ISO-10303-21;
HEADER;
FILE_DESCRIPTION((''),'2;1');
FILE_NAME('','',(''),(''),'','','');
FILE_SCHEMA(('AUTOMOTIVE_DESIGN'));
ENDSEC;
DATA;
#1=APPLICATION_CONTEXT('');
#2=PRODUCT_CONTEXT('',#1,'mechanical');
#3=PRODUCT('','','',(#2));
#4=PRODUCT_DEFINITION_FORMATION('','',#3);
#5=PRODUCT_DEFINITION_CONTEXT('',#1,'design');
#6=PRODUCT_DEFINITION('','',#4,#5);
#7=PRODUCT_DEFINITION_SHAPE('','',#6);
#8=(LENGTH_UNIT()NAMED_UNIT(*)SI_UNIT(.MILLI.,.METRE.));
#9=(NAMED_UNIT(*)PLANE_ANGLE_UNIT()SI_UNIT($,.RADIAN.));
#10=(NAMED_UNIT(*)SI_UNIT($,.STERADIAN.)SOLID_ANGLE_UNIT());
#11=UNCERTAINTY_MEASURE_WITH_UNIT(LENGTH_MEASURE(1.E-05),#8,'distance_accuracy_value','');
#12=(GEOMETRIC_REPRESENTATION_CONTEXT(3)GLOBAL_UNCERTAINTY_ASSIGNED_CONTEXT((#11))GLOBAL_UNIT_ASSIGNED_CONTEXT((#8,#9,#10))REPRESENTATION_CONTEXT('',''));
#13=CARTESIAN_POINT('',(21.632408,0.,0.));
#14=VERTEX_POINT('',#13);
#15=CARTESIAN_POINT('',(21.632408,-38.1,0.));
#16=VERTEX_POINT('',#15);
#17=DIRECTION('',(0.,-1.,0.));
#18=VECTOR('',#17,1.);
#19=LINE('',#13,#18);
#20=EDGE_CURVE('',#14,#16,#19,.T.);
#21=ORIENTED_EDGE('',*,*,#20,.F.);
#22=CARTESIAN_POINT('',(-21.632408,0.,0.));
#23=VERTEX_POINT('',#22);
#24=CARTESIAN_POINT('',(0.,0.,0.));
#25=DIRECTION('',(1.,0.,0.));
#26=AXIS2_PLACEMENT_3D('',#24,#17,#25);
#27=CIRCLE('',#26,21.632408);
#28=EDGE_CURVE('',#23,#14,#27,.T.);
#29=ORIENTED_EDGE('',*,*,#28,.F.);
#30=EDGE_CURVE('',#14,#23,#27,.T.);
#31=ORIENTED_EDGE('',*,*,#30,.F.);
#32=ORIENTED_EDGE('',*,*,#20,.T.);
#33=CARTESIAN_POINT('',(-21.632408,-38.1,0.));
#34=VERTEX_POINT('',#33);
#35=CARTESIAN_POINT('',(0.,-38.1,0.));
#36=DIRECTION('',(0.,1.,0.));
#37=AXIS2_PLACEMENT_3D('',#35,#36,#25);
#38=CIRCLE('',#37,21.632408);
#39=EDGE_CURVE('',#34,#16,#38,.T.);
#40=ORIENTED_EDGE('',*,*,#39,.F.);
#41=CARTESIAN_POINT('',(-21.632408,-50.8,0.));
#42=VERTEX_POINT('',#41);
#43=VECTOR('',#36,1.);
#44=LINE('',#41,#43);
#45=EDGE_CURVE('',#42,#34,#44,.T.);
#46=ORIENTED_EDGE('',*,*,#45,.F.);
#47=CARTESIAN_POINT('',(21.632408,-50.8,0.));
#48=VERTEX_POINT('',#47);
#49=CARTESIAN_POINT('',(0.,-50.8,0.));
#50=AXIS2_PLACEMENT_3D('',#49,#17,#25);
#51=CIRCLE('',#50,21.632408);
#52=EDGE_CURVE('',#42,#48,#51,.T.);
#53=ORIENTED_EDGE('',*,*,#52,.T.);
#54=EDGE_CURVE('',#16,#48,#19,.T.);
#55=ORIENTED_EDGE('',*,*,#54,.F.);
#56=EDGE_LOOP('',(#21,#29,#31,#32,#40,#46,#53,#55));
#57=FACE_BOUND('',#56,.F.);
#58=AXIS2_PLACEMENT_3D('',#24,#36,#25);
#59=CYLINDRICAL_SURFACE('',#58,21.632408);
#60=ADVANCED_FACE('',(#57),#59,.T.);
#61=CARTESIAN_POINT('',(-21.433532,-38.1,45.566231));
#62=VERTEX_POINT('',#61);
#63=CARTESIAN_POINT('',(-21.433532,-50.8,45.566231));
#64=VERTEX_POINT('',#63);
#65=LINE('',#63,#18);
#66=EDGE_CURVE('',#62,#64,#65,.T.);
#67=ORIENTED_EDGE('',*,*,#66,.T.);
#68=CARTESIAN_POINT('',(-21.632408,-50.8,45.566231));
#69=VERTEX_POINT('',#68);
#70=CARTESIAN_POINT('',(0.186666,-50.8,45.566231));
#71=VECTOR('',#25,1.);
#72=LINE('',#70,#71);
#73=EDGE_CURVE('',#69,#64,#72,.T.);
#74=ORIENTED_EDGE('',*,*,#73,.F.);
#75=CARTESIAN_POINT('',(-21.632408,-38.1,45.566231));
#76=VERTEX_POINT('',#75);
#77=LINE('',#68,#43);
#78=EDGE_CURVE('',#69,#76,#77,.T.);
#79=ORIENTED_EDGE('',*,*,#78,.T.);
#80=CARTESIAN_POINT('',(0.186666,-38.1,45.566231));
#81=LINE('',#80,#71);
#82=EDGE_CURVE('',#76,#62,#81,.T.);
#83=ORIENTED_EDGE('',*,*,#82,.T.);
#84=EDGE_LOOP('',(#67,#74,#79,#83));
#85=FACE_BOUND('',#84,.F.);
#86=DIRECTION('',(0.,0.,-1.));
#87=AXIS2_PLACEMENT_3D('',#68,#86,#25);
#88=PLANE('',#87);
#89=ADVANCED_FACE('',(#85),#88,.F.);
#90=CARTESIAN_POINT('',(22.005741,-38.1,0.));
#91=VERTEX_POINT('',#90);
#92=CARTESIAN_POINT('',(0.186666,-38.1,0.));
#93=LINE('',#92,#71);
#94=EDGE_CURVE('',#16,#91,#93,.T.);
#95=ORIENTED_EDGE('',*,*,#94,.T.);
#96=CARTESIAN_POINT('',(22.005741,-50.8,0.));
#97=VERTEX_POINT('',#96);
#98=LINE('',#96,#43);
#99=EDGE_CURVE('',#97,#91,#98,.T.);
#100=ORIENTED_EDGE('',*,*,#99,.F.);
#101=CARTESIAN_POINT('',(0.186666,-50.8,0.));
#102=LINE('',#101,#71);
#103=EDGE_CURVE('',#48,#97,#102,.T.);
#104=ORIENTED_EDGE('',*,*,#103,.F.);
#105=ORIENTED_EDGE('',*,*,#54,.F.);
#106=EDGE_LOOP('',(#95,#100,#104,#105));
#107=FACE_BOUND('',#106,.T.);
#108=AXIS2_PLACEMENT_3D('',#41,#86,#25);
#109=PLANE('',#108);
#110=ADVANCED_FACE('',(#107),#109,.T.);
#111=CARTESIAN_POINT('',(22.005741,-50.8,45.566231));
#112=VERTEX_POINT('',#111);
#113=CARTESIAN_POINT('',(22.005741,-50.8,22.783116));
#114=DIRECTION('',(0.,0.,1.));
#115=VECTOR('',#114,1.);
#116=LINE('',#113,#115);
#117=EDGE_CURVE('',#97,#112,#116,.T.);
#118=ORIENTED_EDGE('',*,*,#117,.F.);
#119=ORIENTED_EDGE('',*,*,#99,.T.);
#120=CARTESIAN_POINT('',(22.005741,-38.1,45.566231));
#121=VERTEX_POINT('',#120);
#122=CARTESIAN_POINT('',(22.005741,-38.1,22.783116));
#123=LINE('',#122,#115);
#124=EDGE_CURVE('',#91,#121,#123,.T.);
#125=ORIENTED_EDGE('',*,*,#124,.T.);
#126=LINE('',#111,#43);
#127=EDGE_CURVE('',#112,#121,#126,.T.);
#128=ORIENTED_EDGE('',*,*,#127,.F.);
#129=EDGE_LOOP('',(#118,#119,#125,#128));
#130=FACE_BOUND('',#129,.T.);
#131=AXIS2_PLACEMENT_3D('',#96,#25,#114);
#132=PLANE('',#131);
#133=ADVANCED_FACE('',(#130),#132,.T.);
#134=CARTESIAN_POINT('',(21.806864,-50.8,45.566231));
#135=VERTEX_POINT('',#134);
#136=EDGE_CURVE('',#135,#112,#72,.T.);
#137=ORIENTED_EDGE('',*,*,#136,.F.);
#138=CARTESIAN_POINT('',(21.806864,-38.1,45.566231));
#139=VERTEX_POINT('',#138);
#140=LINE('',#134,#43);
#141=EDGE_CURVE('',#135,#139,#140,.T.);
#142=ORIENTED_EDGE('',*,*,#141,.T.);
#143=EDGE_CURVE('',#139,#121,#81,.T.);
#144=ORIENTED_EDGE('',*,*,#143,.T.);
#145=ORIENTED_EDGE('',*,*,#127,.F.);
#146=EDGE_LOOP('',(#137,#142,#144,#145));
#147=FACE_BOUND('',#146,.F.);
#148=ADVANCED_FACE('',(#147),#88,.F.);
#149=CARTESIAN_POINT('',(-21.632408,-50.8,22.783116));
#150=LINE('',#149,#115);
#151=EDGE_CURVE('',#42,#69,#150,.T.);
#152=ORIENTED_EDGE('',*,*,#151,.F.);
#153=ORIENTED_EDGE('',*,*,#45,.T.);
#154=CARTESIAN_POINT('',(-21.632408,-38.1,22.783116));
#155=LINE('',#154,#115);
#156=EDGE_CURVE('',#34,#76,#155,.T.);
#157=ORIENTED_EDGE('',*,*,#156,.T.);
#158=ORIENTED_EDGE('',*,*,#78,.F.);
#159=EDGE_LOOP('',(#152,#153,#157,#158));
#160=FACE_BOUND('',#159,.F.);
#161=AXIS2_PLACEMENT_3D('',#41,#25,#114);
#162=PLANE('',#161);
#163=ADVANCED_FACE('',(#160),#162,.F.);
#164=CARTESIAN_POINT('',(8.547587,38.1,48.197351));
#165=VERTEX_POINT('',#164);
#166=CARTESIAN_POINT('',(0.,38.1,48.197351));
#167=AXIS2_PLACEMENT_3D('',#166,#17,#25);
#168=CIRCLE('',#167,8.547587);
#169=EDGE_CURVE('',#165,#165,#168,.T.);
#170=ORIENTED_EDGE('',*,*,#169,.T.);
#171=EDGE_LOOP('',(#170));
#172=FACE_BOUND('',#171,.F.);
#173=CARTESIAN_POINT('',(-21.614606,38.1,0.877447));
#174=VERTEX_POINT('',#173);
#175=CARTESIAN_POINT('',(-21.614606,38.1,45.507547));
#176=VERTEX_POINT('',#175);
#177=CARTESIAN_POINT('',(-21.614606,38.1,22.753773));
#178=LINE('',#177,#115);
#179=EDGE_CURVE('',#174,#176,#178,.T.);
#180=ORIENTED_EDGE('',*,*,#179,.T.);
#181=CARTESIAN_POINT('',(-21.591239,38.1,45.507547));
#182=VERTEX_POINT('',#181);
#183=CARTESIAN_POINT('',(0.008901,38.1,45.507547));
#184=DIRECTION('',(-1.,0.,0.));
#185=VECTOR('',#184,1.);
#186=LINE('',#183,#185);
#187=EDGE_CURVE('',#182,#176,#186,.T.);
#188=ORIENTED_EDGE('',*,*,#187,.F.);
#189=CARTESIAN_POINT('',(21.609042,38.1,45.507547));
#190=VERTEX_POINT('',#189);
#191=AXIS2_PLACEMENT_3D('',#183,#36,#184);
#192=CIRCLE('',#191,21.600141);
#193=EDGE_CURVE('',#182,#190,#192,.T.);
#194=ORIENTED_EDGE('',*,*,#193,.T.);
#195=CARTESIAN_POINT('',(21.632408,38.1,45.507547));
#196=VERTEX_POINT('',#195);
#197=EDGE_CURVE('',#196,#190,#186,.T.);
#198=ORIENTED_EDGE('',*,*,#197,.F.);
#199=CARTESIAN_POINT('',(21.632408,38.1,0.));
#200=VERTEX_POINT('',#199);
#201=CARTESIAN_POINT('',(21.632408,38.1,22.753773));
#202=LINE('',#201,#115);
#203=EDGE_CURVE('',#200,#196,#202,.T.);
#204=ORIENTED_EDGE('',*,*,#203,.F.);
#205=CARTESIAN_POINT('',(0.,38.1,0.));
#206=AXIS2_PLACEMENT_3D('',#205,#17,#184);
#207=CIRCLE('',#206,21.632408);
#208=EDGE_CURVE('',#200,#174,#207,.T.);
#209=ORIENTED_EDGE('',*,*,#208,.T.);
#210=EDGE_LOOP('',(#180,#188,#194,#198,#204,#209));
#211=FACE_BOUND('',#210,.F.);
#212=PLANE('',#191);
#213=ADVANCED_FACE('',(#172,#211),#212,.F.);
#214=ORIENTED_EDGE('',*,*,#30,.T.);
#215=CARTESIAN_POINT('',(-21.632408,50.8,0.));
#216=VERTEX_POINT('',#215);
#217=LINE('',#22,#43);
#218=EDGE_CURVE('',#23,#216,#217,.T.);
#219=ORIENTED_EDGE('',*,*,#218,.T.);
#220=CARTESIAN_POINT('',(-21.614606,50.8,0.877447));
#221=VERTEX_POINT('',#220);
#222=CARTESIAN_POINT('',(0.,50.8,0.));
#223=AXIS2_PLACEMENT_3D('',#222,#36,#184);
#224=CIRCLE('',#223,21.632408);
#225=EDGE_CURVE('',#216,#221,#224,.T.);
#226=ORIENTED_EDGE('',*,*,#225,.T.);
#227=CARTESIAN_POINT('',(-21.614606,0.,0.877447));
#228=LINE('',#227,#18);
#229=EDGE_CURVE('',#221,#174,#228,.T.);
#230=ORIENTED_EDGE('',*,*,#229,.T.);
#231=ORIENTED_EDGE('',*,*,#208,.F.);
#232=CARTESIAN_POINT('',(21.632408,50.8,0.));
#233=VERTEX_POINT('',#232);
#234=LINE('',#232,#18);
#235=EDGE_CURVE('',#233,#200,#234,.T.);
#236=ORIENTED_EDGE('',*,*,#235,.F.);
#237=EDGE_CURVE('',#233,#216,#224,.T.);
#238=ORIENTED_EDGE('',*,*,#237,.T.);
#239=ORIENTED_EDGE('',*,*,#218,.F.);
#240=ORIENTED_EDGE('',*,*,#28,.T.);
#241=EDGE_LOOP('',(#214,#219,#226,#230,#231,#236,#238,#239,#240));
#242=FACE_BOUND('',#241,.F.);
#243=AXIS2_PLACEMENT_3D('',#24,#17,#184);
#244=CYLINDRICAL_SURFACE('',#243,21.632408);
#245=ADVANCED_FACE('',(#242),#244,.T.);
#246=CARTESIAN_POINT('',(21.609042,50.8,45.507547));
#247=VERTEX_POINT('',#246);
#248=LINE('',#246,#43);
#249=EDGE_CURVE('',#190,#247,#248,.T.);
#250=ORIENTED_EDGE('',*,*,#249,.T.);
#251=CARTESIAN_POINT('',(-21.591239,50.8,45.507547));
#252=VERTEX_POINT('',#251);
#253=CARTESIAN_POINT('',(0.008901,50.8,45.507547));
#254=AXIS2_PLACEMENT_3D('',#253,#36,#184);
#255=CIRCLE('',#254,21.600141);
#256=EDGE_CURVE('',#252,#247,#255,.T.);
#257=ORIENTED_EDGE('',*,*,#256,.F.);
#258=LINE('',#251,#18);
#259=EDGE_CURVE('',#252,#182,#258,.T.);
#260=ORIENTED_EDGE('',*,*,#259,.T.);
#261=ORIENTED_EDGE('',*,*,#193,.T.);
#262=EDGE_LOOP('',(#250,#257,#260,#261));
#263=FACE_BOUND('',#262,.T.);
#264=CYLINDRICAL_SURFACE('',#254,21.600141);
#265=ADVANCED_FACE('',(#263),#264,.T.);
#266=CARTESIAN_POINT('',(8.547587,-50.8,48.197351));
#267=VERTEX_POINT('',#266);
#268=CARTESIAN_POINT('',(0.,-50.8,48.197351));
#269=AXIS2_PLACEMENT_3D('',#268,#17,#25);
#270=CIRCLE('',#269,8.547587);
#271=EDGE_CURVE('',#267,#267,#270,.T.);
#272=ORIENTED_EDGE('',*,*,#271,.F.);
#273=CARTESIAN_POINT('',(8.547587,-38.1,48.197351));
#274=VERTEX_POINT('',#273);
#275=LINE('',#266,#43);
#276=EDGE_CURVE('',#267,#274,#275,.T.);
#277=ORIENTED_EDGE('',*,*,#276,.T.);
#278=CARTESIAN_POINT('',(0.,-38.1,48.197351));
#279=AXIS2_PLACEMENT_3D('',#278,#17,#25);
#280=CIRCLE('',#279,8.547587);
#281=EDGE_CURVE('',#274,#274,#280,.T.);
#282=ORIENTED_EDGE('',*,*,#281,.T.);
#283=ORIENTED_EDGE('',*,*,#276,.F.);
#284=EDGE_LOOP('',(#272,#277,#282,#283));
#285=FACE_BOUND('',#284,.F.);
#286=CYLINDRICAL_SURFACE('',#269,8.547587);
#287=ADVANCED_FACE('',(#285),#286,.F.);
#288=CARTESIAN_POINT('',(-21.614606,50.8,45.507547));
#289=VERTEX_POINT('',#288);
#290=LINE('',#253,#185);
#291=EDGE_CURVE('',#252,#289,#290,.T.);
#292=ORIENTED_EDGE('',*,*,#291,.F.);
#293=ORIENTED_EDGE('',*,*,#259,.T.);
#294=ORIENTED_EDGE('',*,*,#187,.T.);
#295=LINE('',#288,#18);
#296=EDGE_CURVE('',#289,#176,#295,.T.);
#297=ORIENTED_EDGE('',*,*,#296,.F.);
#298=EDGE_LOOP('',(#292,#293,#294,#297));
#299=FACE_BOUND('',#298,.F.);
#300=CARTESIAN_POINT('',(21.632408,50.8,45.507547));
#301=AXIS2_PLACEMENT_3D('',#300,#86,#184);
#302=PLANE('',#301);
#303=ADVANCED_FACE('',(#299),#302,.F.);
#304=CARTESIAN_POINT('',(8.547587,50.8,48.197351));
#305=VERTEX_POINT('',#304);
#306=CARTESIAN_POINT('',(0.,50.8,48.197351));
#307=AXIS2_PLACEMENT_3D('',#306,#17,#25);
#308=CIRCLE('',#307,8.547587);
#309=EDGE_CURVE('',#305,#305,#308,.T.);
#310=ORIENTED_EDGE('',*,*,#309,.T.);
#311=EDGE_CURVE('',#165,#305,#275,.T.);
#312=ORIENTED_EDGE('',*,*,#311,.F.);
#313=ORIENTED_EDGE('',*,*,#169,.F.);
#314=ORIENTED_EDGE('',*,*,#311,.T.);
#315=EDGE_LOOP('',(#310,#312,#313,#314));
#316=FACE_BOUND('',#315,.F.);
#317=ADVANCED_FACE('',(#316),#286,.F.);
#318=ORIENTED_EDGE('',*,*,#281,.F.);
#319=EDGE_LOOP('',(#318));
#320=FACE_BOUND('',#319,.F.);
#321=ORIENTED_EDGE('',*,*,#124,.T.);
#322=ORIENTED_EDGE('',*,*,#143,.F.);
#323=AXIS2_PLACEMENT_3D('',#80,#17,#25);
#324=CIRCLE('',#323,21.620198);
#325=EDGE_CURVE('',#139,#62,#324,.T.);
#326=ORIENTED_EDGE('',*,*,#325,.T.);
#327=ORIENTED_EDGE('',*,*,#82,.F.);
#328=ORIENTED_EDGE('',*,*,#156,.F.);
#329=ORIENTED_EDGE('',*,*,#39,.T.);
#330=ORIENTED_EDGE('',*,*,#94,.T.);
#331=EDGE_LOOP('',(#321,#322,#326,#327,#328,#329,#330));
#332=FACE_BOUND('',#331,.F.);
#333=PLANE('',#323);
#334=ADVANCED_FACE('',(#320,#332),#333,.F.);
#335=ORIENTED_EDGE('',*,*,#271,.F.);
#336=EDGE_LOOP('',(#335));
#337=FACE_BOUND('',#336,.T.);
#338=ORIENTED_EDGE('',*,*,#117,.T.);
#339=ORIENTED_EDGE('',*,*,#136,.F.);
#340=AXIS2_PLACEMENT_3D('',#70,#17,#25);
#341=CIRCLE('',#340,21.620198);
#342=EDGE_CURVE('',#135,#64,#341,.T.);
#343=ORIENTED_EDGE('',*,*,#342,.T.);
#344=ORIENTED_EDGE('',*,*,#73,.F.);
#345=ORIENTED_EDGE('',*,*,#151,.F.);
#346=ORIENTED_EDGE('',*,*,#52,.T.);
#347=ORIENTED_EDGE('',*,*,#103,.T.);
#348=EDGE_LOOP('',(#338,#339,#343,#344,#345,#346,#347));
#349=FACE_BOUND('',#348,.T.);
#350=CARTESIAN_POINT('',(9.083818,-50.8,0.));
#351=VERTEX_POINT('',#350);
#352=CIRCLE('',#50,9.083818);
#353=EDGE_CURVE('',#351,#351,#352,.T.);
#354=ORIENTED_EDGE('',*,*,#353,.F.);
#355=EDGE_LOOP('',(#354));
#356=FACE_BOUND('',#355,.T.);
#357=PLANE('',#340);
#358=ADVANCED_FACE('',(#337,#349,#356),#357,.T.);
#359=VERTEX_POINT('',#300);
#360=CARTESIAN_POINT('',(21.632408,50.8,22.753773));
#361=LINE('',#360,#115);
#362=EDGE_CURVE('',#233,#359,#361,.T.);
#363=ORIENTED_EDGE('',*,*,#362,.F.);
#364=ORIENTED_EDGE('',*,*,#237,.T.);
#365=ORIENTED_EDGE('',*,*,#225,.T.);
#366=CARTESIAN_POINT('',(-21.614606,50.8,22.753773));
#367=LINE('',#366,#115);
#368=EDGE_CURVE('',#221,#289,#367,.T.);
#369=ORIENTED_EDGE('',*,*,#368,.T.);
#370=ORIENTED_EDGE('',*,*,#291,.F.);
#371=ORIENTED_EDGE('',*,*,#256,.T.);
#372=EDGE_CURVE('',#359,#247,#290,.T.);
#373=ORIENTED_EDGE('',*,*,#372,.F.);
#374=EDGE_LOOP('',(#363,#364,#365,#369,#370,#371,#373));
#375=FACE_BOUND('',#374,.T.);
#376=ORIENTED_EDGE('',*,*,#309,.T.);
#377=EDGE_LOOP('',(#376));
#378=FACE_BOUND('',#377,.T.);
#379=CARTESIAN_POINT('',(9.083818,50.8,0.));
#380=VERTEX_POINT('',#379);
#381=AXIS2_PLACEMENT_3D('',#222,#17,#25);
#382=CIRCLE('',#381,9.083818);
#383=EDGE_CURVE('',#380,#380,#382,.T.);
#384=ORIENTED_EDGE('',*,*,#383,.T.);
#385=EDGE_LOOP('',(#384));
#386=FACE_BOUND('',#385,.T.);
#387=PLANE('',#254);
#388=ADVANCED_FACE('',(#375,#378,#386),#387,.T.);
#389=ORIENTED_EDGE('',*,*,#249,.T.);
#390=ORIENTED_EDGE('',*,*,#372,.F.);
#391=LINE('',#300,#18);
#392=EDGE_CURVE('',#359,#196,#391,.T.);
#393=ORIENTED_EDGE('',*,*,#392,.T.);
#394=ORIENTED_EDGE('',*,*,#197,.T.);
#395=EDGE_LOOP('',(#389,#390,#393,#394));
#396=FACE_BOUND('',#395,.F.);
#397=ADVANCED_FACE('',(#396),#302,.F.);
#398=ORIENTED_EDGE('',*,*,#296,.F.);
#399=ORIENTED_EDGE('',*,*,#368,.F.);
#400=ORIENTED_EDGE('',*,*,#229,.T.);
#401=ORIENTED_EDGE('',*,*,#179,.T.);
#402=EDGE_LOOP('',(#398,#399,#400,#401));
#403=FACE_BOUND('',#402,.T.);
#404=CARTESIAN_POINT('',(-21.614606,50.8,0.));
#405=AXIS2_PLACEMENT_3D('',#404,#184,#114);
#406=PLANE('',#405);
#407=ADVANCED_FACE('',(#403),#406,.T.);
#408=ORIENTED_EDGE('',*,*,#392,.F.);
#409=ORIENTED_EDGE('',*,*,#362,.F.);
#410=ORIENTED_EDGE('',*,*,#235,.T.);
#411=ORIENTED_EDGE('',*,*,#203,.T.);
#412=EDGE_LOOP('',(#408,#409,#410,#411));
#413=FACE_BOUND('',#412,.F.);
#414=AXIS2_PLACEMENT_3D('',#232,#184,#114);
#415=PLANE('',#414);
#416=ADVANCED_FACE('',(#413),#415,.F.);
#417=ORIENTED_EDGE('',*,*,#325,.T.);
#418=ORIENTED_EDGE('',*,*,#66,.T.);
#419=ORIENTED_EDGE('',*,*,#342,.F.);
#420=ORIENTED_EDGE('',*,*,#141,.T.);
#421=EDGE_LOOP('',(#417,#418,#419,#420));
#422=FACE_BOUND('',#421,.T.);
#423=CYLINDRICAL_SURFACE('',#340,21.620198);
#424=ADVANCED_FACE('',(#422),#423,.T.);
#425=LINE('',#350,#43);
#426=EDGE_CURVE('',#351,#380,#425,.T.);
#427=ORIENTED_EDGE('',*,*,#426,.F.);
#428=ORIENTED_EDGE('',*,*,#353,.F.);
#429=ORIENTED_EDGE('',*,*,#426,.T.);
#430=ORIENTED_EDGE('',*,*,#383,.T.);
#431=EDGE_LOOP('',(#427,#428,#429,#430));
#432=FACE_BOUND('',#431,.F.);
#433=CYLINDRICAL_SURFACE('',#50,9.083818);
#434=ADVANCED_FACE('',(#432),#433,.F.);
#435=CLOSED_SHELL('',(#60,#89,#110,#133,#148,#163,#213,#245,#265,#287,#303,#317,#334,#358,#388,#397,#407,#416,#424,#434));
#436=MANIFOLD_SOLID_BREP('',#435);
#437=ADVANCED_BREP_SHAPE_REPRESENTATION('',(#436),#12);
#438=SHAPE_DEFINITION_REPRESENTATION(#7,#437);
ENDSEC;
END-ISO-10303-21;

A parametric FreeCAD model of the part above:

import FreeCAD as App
import Part
import Sketcher
Q = App.Units.Quantity


def add_polygon(sketch, points):
    """Adds a closed chain of lines whose ends are joined by coincident constraints."""
    first, n = sketch.GeometryCount, len(points)
    for a, b in zip(points, points[1:] + points[:1]):
        sketch.addGeometry(Part.LineSegment(App.Vector(*a, 0), App.Vector(*b, 0)), False)
    for i in range(n):
        sketch.addConstraint(Sketcher.Constraint("Coincident", first + i, 2, first + (i + 1) % n, 1))

doc = App.newDocument("Part")
body = doc.addObject("PartDesign::Body", "Body")

# Sketch on XZ plane
sketch1 = body.newObject("Sketcher::SketchObject", "Sketch")
sketch1.AttachmentSupport = (doc.getObject("XZ_Plane"), [""])
sketch1.MapMode = "FlatFace"
sketch1.addGeometry(Part.Circle(App.Vector(0, 0, 0), App.Vector(0, 0, 1), 22), False)
sketch1.addConstraint([
    Sketcher.Constraint("Coincident", 0, 3, -1, 1),
    Sketcher.Constraint("Diameter", 0, Q("43.264816 mm")),
])
pad1 = body.newObject("PartDesign::Pad", "Pad")
pad1.Profile = sketch1
pad1.Length = Q("2 in")

# Sketch on XZ plane
sketch2 = body.newObject("Sketcher::SketchObject", "Sketch001")
sketch2.AttachmentSupport = (doc.getObject("XZ_Plane"), [""])
sketch2.MapMode = "FlatFace"
sketch2.addGeometry(Part.Circle(App.Vector(0, 0, 0), App.Vector(0, 0, 1), 22), False)
sketch2.addConstraint([
    Sketcher.Constraint("Coincident", 0, 3, -1, 1),
    Sketcher.Constraint("Diameter", 0, Q("43.264816 mm")),
])
pad2 = body.newObject("PartDesign::Pad", "Pad001")
pad2.Profile = sketch2
pad2.Length = Q("2 in")
pad2.Reversed = True

# Sketch on XZ plane
sketch3 = body.newObject("Sketcher::SketchObject", "Sketch002")
sketch3.AttachmentSupport = (doc.getObject("XZ_Plane"), [""])
sketch3.MapMode = "FlatFace"
sketch3.AttachmentOffset = App.Placement(App.Vector(0, 0, 2 * 25.4), App.Rotation())
add_polygon(sketch3, [(-22, 46), (-22, 0), (22, 0), (22, 46)])  # lines 0-3
sketch3.addConstraint([
    Sketcher.Constraint("Vertical", 0),
    Sketcher.Constraint("Horizontal", 1),
    Sketcher.Constraint("Vertical", 2),
    Sketcher.Constraint("Horizontal", 3),
    Sketcher.Constraint("PointOnObject", 0, 2, -1),
    Sketcher.Constraint("DistanceX", 1, 1, 1, 2, Q("43.638149 mm")),
    Sketcher.Constraint("DistanceY", 0, 2, 0, 1, Q("45.566231 mm")),
    Sketcher.Constraint("DistanceX", 0, 2, -1, 1, Q("21.632408 mm")),
])
pad3 = body.newObject("PartDesign::Pad", "Pad002")
pad3.Profile = sketch3
pad3.Length = Q("0.5 in")
pad3.Reversed = True

# Sketch on XZ plane
sketch4 = body.newObject("Sketcher::SketchObject", "Sketch003")
sketch4.AttachmentSupport = (doc.getObject("XZ_Plane"), [""])
sketch4.MapMode = "FlatFace"
sketch4.AttachmentOffset = App.Placement(App.Vector(0, 0, 2 * 25.4), App.Rotation())
sketch4.addGeometry(Part.Circle(App.Vector(0, 46, 0), App.Vector(0, 0, 1), 22), False)
sketch4.addConstraint([
    Sketcher.Constraint("Diameter", 0, Q("43.240397 mm")),
    Sketcher.Constraint("DistanceY", -1, 1, 0, 3, Q("45.566231 mm")),
    Sketcher.Constraint("DistanceX", -1, 1, 0, 3, Q("0.186666 mm")),
])
pad4 = body.newObject("PartDesign::Pad", "Pad003")
pad4.Profile = sketch4
pad4.Length = Q("0.5 in")
pad4.Reversed = True

# Sketch on XZ plane
sketch5 = body.newObject("Sketcher::SketchObject", "Sketch004")
sketch5.AttachmentSupport = (doc.getObject("XZ_Plane"), [""])
sketch5.MapMode = "FlatFace"
sketch5.AttachmentOffset = App.Placement(App.Vector(0, 0, -2 * 25.4), App.Rotation())
add_polygon(sketch5, [(22, 46), (22, 0), (-22, 0), (-22, 46)])  # lines 0-3
sketch5.addConstraint([
    Sketcher.Constraint("Vertical", 0),
    Sketcher.Constraint("Horizontal", 1),
    Sketcher.Constraint("Vertical", 2),
    Sketcher.Constraint("Horizontal", 3),
    Sketcher.Constraint("PointOnObject", 0, 2, -1),
    Sketcher.Constraint("DistanceX", 1, 2, 1, 1, Q("43.247014 mm")),
    Sketcher.Constraint("DistanceY", 0, 2, 0, 1, Q("45.507547 mm")),
    Sketcher.Constraint("DistanceX", -1, 1, 0, 2, Q("21.632408 mm")),
])
pad5 = body.newObject("PartDesign::Pad", "Pad004")
pad5.Profile = sketch5
pad5.Length = Q("0.5 in")

# Sketch on XZ plane
sketch6 = body.newObject("Sketcher::SketchObject", "Sketch005")
sketch6.AttachmentSupport = (doc.getObject("XZ_Plane"), [""])
sketch6.MapMode = "FlatFace"
sketch6.AttachmentOffset = App.Placement(App.Vector(0, 0, -2 * 25.4), App.Rotation())
sketch6.addGeometry(Part.Circle(App.Vector(0, 46, 0), App.Vector(0, 0, 1), 22), False)
sketch6.addConstraint([
    Sketcher.Constraint("Diameter", 0, Q("43.200281 mm")),
    Sketcher.Constraint("DistanceX", -1, 1, 0, 3, Q("0.008901 mm")),
    Sketcher.Constraint("DistanceY", -1, 1, 0, 3, Q("45.507547 mm")),
])
pad6 = body.newObject("PartDesign::Pad", "Pad005")
pad6.Profile = sketch6
pad6.Length = Q("0.5 in")

# Sketch on XZ plane
sketch7 = body.newObject("Sketcher::SketchObject", "Sketch006")
sketch7.AttachmentSupport = (doc.getObject("XZ_Plane"), [""])
sketch7.MapMode = "FlatFace"
sketch7.AttachmentOffset = App.Placement(App.Vector(0, 0, 2 * 25.4), App.Rotation())
sketch7.addGeometry(Part.Circle(App.Vector(0, 0, 0), App.Vector(0, 0, 1), 9), False)
sketch7.addConstraint([
    Sketcher.Constraint("Coincident", 0, 3, -1, 1),
    Sketcher.Constraint("Diameter", 0, Q("18.167635 mm")),
])
pocket1 = body.newObject("PartDesign::Pocket", "Pocket")
pocket1.Profile = sketch7
pocket1.Type = "ThroughAll"

# Sketch on XZ plane
sketch8 = body.newObject("Sketcher::SketchObject", "Sketch007")
sketch8.AttachmentSupport = (doc.getObject("XZ_Plane"), [""])
sketch8.MapMode = "FlatFace"
sketch8.AttachmentOffset = App.Placement(App.Vector(0, 0, 2 * 25.4), App.Rotation())
sketch8.addGeometry(Part.Circle(App.Vector(0, 48, 0), App.Vector(0, 0, 1), 9), False)
sketch8.addConstraint([
    Sketcher.Constraint("PointOnObject", 0, 3, -2),
    Sketcher.Constraint("Diameter", 0, Q("17.095174 mm")),
    Sketcher.Constraint("DistanceY", -1, 1, 0, 3, Q("48.197351 mm")),
])
pocket2 = body.newObject("PartDesign::Pocket", "Pocket001")
pocket2.Profile = sketch8
pocket2.Type = "ThroughAll"

doc.recompute()
